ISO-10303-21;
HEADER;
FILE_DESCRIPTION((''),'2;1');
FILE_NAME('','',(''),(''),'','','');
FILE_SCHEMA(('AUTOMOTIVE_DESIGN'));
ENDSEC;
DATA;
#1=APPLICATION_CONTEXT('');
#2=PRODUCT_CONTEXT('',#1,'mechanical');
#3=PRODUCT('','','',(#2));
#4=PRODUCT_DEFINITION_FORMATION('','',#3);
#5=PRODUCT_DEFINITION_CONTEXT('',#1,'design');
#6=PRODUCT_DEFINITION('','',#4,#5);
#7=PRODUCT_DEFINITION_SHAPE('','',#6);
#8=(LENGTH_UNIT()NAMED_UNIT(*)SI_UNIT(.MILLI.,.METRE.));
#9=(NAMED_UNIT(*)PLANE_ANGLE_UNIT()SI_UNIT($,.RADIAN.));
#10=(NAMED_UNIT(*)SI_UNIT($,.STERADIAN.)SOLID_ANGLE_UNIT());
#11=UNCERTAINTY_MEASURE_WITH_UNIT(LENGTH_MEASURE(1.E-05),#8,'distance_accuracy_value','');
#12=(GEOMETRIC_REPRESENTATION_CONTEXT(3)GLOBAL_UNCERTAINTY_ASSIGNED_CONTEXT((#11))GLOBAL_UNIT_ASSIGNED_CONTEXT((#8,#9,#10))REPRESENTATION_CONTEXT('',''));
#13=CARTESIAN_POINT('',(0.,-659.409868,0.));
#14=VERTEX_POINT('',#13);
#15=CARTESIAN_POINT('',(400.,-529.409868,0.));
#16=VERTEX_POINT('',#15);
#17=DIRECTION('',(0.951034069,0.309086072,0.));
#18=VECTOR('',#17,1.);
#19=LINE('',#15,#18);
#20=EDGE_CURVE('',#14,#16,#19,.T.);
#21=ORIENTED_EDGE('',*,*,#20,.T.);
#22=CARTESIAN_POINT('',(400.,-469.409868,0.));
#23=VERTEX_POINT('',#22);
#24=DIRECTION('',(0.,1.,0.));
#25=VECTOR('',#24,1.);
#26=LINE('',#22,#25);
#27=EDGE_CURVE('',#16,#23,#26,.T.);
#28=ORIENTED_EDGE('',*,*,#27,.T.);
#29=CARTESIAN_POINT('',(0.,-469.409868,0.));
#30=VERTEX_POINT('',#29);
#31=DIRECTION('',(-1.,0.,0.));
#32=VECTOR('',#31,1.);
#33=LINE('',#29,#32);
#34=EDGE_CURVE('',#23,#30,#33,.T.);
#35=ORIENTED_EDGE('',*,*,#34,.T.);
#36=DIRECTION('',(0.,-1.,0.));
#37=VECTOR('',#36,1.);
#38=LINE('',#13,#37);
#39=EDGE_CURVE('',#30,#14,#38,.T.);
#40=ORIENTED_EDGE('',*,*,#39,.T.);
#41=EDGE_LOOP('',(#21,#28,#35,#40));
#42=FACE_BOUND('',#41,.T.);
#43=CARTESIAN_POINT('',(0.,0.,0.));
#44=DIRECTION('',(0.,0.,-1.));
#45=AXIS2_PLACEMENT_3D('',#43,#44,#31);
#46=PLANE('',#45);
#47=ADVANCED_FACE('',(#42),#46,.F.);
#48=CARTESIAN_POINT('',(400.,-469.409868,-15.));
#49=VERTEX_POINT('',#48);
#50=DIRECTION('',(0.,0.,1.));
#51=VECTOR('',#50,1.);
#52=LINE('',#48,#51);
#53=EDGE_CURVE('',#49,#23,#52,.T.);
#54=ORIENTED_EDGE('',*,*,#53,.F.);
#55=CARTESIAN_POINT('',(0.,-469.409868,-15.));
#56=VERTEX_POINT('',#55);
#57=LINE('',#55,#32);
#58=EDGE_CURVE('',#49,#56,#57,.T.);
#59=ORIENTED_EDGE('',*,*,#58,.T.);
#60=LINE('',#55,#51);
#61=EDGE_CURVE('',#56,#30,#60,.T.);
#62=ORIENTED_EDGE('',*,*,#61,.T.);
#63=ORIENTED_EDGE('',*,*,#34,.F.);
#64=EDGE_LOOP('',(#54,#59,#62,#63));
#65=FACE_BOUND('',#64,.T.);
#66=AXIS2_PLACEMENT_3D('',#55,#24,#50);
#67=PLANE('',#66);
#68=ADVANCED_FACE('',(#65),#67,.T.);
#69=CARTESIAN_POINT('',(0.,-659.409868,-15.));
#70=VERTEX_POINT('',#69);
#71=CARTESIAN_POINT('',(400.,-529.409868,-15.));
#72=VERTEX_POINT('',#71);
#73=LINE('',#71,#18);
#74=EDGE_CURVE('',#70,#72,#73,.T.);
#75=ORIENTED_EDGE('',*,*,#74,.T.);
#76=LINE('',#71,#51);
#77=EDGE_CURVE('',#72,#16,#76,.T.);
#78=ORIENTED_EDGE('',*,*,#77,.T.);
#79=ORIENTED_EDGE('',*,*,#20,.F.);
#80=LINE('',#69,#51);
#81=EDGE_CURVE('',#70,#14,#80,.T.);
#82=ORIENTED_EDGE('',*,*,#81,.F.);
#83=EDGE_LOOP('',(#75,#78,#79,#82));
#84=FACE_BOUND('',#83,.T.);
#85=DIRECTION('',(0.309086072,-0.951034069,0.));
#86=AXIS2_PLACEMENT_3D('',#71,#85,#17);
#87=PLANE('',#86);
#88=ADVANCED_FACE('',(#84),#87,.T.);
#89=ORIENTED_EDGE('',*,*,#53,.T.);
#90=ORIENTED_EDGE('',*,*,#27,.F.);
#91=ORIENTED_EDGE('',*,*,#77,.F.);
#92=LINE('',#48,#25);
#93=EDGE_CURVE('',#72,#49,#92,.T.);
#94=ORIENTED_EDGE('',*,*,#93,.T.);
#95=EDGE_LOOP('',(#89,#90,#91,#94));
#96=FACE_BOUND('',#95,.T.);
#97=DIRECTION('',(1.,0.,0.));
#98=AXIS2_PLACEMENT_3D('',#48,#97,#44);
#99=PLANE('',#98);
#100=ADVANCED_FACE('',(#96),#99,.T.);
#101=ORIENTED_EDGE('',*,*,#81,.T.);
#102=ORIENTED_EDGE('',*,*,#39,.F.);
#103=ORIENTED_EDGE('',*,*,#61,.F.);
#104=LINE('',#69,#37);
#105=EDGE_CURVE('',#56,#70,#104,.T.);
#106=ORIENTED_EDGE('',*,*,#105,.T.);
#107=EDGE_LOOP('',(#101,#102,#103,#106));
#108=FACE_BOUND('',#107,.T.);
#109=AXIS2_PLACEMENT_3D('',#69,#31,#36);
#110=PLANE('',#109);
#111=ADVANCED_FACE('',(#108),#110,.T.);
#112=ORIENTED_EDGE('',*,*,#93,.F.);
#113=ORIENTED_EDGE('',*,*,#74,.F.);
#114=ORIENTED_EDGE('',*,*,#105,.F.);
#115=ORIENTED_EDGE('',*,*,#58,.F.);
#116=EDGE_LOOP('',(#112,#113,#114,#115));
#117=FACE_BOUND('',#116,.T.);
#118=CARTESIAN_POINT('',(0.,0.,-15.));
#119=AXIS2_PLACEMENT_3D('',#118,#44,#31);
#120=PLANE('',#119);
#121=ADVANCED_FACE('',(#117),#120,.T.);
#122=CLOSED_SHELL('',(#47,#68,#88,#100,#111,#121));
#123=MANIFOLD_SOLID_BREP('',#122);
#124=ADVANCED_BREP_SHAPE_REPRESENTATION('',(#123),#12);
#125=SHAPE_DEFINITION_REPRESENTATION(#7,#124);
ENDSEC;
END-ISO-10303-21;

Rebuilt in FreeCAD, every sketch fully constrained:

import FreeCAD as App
import Part
import Sketcher

V = App.Vector
Q = App.Units.Quantity

doc = App.newDocument("Part")
params = doc.addObject("Spreadsheet::Sheet", "Params")
for row, (alias, value) in enumerate([
    ("sketch1_width", "400 mm"),
    ("sketch1_height", "190 mm"),
    ("sketch1_height2", "60 mm"),
    ("pad1_length", "15 mm"),
], start=1):
    params.set(f"A{row}", alias)
    params.set(f"B{row}", "=" + value)
    params.setAlias(f"B{row}", alias)

body = doc.addObject("PartDesign::Body", "Body")

sketch1 = body.newObject("Sketcher::SketchObject", "Sketch")
sketch1.AttachmentSupport = (doc.getObject("XY_Plane"), [""])
sketch1.MapMode = "FlatFace"
sketch1.addGeometry([
    Part.LineSegment(V(400, -469.409868, 0), V(0, -469.409868, 0)),
    Part.LineSegment(V(0, -469.409868, 0), V(0, -659.409868, 0)),
    Part.LineSegment(V(0, -659.409868, 0), V(400, -529.409868, 0)),
    Part.LineSegment(V(400, -529.409868, 0), V(400, -469.409868, 0)),
], False)
sketch1.addConstraint([
    Sketcher.Constraint("Coincident", 0, 2, 1, 1),
    Sketcher.Constraint("Coincident", 1, 2, 2, 1),
    Sketcher.Constraint("Coincident", 2, 2, 3, 1),
    Sketcher.Constraint("Coincident", 3, 2, 0, 1),
    Sketcher.Constraint("Horizontal", 0),
    Sketcher.Constraint("Vertical", 1),
    Sketcher.Constraint("Vertical", 3),
    Sketcher.Constraint("PointOnObject", 0, 2, -2),
    Sketcher.Constraint("DistanceX", 0, 2, 0, 1, Q("400 mm")),
    Sketcher.Constraint("DistanceY", 1, 2, 1, 1, Q("190 mm")),
    Sketcher.Constraint("DistanceY", 3, 1, 3, 2, Q("60 mm")),
    Sketcher.Constraint("DistanceY", 0, 2, -1, 1, Q("469.409868 mm")),
])
sketch1.setExpression("Constraints[8]", "Params.sketch1_width")
sketch1.setExpression("Constraints[9]", "Params.sketch1_height")
sketch1.setExpression("Constraints[10]", "Params.sketch1_height2")
pad1 = body.newObject("PartDesign::Pad", "Pad")
pad1.Profile = sketch1
pad1.setExpression("Length", "Params.pad1_length")
pad1.Reversed = True

doc.recompute()
